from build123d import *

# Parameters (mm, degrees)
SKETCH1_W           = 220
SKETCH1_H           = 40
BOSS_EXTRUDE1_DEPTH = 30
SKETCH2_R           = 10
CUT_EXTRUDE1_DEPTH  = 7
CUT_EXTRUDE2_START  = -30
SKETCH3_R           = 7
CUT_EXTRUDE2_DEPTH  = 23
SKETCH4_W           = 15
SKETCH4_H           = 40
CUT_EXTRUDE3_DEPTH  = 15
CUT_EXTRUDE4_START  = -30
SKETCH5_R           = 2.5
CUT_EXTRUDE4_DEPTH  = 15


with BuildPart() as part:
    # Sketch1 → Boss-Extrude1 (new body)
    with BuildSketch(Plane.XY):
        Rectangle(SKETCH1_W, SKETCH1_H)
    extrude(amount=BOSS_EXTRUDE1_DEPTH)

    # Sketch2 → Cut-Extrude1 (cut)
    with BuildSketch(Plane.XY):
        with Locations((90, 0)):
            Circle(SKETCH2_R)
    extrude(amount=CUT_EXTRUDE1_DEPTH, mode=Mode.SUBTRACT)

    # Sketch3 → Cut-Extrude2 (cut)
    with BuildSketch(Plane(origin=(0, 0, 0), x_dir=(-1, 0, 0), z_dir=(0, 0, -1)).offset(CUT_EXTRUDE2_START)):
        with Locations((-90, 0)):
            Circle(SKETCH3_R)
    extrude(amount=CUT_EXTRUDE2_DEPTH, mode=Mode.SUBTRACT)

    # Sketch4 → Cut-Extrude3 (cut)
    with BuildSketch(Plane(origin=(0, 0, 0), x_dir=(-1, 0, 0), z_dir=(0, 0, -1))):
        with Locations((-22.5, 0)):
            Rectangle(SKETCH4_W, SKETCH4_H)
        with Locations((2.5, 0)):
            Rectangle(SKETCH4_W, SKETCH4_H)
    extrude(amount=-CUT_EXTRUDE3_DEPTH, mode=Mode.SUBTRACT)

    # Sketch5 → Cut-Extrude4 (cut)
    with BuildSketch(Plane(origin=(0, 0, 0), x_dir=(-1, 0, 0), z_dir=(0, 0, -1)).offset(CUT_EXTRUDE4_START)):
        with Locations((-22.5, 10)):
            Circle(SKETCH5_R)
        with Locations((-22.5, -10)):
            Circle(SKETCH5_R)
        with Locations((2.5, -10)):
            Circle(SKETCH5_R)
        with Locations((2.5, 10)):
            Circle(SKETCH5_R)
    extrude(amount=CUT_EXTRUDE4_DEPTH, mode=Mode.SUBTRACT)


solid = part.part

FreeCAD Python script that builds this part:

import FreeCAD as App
import Part
import Sketcher
Q = App.Units.Quantity


def add_polygon(sketch, points):
    """Adds a closed chain of lines whose ends are joined by coincident constraints."""
    first, n = sketch.GeometryCount, len(points)
    for a, b in zip(points, points[1:] + points[:1]):
        sketch.addGeometry(Part.LineSegment(App.Vector(*a, 0), App.Vector(*b, 0)), False)
    for i in range(n):
        sketch.addConstraint(Sketcher.Constraint("Coincident", first + i, 2, first + (i + 1) % n, 1))

doc = App.newDocument("Part")
body = doc.addObject("PartDesign::Body", "Body")

# Sketch on XY plane
sketch1 = body.newObject("Sketcher::SketchObject", "Sketch")
sketch1.AttachmentSupport = (doc.getObject("XY_Plane"), [""])
sketch1.MapMode = "FlatFace"
add_polygon(sketch1, [(-110, 20), (-110, -20), (110, -20), (110, 20)])  # lines 0-3
sketch1.addConstraint([
    Sketcher.Constraint("Vertical", 0),
    Sketcher.Constraint("Horizontal", 1),
    Sketcher.Constraint("Vertical", 2),
    Sketcher.Constraint("Horizontal", 3),
    Sketcher.Constraint("Symmetric", 0, 2, 2, 2, -1, 1),
    Sketcher.Constraint("DistanceX", 1, 1, 1, 2, Q("220 mm")),
    Sketcher.Constraint("DistanceY", 0, 2, 0, 1, Q("40 mm")),
])
pad1 = body.newObject("PartDesign::Pad", "Pad")
pad1.Profile = sketch1
pad1.Length = 30

# Sketch on XY plane
sketch2 = body.newObject("Sketcher::SketchObject", "Sketch001")
sketch2.AttachmentSupport = (doc.getObject("XY_Plane"), [""])
sketch2.MapMode = "FlatFace"
sketch2.addGeometry(Part.Circle(App.Vector(90, 0, 0), App.Vector(0, 0, 1), 10), False)
sketch2.addConstraint([
    Sketcher.Constraint("PointOnObject", 0, 3, -1),
    Sketcher.Constraint("Diameter", 0, Q("20 mm")),
    Sketcher.Constraint("DistanceX", -1, 1, 0, 3, Q("90 mm")),
])
pocket1 = body.newObject("PartDesign::Pocket", "Pocket")
pocket1.Profile = sketch2
pocket1.Length = 7
pocket1.Reversed = True

# Sketch on XY plane
sketch3 = body.newObject("Sketcher::SketchObject", "Sketch002")
sketch3.AttachmentSupport = (doc.getObject("XY_Plane"), [""])
sketch3.MapMode = "FlatFace"
sketch3.AttachmentOffset = App.Placement(App.Vector(0, 0, 30), App.Rotation())
sketch3.addGeometry(Part.Circle(App.Vector(90, 0, 0), App.Vector(0, 0, 1), 7), False)
sketch3.addConstraint([
    Sketcher.Constraint("PointOnObject", 0, 3, -1),
    Sketcher.Constraint("Diameter", 0, Q("14 mm")),
    Sketcher.Constraint("DistanceX", -1, 1, 0, 3, Q("90 mm")),
])
pocket2 = body.newObject("PartDesign::Pocket", "Pocket001")
pocket2.Profile = sketch3
pocket2.Length = 23

# Sketch on XY plane
sketch4 = body.newObject("Sketcher::SketchObject", "Sketch003")
sketch4.AttachmentSupport = (doc.getObject("XY_Plane"), [""])
sketch4.MapMode = "FlatFace"
add_polygon(sketch4, [(30, 20), (30, -20), (15, -20), (15, 20)])  # lines 0-3
add_polygon(sketch4, [(5, 20), (5, -20), (-10, -20), (-10, 20)])  # lines 4-7
sketch4.addConstraint([
    Sketcher.Constraint("Vertical", 0),
    Sketcher.Constraint("Horizontal", 1),
    Sketcher.Constraint("Vertical", 2),
    Sketcher.Constraint("Horizontal", 3),
    Sketcher.Constraint("Vertical", 4),
    Sketcher.Constraint("Horizontal", 5),
    Sketcher.Constraint("Vertical", 6),
    Sketcher.Constraint("Horizontal", 7),
    Sketcher.Constraint("Horizontal", 1, 2, 4, 2),
    Sketcher.Constraint("Horizontal", 3, 2, 6, 2),
    Sketcher.Constraint("Equal", 3, 5),
    Sketcher.Constraint("DistanceX", 1, 2, 1, 1, Q("15 mm")),
    Sketcher.Constraint("DistanceY", 0, 2, 0, 1, Q("40 mm")),
    Sketcher.Constraint("DistanceX", -1, 1, 0, 2, Q("30 mm")),
    Sketcher.Constraint("DistanceY", 0, 2, -1, 1, Q("20 mm")),
    Sketcher.Constraint("DistanceX", -1, 1, 4, 2, Q("5 mm")),
])
pocket3 = body.newObject("PartDesign::Pocket", "Pocket002")
pocket3.Profile = sketch4
pocket3.Length = 15
pocket3.Reversed = True

# Sketch on XY plane
sketch5 = body.newObject("Sketcher::SketchObject", "Sketch004")
sketch5.AttachmentSupport = (doc.getObject("XY_Plane"), [""])
sketch5.MapMode = "FlatFace"
sketch5.AttachmentOffset = App.Placement(App.Vector(0, 0, 30), App.Rotation())
sketch5.addGeometry([
    Part.Circle(App.Vector(22.5, 10, 0), App.Vector(0, 0, 1), 2.5),
    Part.Circle(App.Vector(22.5, -10, 0), App.Vector(0, 0, 1), 2.5),
    Part.Circle(App.Vector(-2.5, -10, 0), App.Vector(0, 0, 1), 2.5),
    Part.Circle(App.Vector(-2.5, 10, 0), App.Vector(0, 0, 1), 2.5),
], False)
sketch5.addConstraint([
    Sketcher.Constraint("Equal", 0, 1),
    Sketcher.Constraint("Equal", 1, 2),
    Sketcher.Constraint("Equal", 2, 3),
    Sketcher.Constraint("Symmetric", 0, 3, 1, 3, -1),
    Sketcher.Constraint("Symmetric", 2, 3, 3, 3, -1),
    Sketcher.Constraint("Horizontal", 1, 3, 2, 3),
    Sketcher.Constraint("Diameter", 0, Q("5 mm")),
    Sketcher.Constraint("DistanceY", -1, 1, 0, 3, Q("10 mm")),
    Sketcher.Constraint("DistanceX", 2, 3, 1, 3, Q("25 mm")),
    Sketcher.Constraint("DistanceX", -1, 1, 0, 3, Q("22.5 mm")),
])
pocket4 = body.newObject("PartDesign::Pocket", "Pocket003")
pocket4.Profile = sketch5
pocket4.Length = 15

doc.recompute()
